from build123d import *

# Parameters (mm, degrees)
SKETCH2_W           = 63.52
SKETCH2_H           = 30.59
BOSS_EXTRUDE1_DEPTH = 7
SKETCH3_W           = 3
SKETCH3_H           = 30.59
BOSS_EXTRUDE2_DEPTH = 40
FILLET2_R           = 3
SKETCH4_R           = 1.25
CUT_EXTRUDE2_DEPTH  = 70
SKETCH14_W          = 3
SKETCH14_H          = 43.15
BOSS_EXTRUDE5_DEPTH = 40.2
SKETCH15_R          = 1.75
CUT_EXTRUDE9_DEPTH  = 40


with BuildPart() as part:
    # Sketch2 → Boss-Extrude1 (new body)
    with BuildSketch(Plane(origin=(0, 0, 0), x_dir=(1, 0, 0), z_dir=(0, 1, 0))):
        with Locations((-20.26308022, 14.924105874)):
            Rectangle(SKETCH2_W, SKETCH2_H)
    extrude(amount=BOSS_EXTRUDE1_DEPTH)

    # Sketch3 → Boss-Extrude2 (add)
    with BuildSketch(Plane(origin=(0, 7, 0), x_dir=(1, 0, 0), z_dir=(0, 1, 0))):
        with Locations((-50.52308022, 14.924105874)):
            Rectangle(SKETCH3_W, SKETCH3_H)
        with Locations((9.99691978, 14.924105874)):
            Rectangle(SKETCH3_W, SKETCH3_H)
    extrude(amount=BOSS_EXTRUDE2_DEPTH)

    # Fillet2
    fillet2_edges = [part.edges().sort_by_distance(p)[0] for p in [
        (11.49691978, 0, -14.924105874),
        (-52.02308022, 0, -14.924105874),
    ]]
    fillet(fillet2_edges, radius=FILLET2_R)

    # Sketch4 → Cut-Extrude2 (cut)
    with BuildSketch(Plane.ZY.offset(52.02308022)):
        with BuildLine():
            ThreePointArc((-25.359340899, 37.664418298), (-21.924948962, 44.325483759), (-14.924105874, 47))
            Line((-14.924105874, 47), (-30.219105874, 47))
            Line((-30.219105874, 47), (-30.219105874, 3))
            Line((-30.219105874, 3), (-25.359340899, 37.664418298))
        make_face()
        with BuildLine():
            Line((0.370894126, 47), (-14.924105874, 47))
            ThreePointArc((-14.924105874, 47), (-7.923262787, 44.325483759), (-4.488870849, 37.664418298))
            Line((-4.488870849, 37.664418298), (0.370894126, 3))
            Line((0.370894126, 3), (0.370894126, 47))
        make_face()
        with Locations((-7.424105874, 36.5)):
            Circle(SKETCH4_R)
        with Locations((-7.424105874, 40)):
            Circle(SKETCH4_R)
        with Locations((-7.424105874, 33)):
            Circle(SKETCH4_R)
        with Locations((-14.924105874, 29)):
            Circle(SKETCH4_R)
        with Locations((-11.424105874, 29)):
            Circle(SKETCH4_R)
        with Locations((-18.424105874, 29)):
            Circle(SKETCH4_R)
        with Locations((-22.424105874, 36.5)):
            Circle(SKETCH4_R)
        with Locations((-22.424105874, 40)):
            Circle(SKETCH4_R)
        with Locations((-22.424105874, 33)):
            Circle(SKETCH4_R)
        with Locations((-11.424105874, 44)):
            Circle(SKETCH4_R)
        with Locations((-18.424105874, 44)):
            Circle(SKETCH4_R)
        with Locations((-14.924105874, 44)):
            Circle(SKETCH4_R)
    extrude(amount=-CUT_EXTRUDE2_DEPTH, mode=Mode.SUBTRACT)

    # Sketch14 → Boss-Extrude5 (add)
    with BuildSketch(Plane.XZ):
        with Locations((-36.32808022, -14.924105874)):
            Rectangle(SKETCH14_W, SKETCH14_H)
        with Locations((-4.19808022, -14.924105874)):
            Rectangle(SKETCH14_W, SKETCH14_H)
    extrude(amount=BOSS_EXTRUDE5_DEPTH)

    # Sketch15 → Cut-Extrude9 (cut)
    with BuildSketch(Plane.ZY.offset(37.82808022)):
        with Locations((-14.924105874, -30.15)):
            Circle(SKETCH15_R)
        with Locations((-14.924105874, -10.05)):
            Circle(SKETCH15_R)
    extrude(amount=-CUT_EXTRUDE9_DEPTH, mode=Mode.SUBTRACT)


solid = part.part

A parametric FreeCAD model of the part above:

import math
import FreeCAD as App
import Part
import Sketcher
from FreeCAD import Vector
Q = App.Units.Quantity


def edges_at(feature, points):
    """Names of the edges that pass closest to the given points."""
    edges = feature.Shape.Edges
    near = lambda p: min(range(len(edges)), key=lambda i: edges[i].distToShape(Part.Vertex(*p))[0])
    return sorted({f"Edge{near(p) + 1}" for p in points})


def add_polygon(sketch, points):
    """Adds a closed chain of lines whose ends are joined by coincident constraints."""
    first, n = sketch.GeometryCount, len(points)
    for a, b in zip(points, points[1:] + points[:1]):
        sketch.addGeometry(Part.LineSegment(App.Vector(*a, 0), App.Vector(*b, 0)), False)
    for i in range(n):
        sketch.addConstraint(Sketcher.Constraint("Coincident", first + i, 2, first + (i + 1) % n, 1))

doc = App.newDocument("Part")
body = doc.addObject("PartDesign::Body", "Body")

# Sketch on XZ plane
sketch1 = body.newObject("Sketcher::SketchObject", "Sketch")
sketch1.AttachmentSupport = (doc.getObject("XZ_Plane"), [""])
sketch1.MapMode = "FlatFace"
add_polygon(sketch1, [(-52.02308, -30.219106), (-52.02308, 0.370894), (11.49692, 0.370894), (11.49692, -30.219106)])  # lines 0-3
sketch1.addConstraint([
    Sketcher.Constraint("Vertical", 0),
    Sketcher.Constraint("Horizontal", 1),
    Sketcher.Constraint("Vertical", 2),
    Sketcher.Constraint("Horizontal", 3),
    Sketcher.Constraint("DistanceX", 1, 1, 1, 2, Q("63.52 mm")),
    Sketcher.Constraint("DistanceY", 0, 1, 0, 2, Q("30.59 mm")),
    Sketcher.Constraint("DistanceX", 0, 2, -1, 1, Q("52.02308 mm")),
    Sketcher.Constraint("DistanceY", -1, 1, 0, 2, Q("0.370894 mm")),
])
pad1 = body.newObject("PartDesign::Pad", "Pad")
pad1.Profile = sketch1
pad1.Length = 7
pad1.Reversed = True

# Sketch on XZ plane
sketch2 = body.newObject("Sketcher::SketchObject", "Sketch001")
sketch2.AttachmentSupport = (doc.getObject("XZ_Plane"), [""])
sketch2.MapMode = "FlatFace"
sketch2.AttachmentOffset = App.Placement(Vector(0, 0, -7), App.Rotation())
add_polygon(sketch2, [(-52.02308, -30.219106), (-52.02308, 0.370894), (-49.02308, 0.370894), (-49.02308, -30.219106)])  # lines 0-3
add_polygon(sketch2, [(8.49692, -30.219106), (8.49692, 0.370894), (11.49692, 0.370894), (11.49692, -30.219106)])  # lines 4-7
sketch2.addConstraint([
    Sketcher.Constraint("Vertical", 0),
    Sketcher.Constraint("Horizontal", 1),
    Sketcher.Constraint("Vertical", 2),
    Sketcher.Constraint("Horizontal", 3),
    Sketcher.Constraint("Vertical", 4),
    Sketcher.Constraint("Horizontal", 5),
    Sketcher.Constraint("Vertical", 6),
    Sketcher.Constraint("Horizontal", 7),
    Sketcher.Constraint("Horizontal", 1, 2, 4, 2),
    Sketcher.Constraint("Horizontal", 3, 2, 6, 2),
    Sketcher.Constraint("Equal", 3, 5),
    Sketcher.Constraint("DistanceX", 1, 1, 1, 2, Q("3 mm")),
    Sketcher.Constraint("DistanceY", 0, 1, 0, 2, Q("30.59 mm")),
    Sketcher.Constraint("DistanceX", 1, 2, 4, 2, Q("57.52 mm")),
    Sketcher.Constraint("DistanceX", 0, 2, -1, 1, Q("52.02308 mm")),
    Sketcher.Constraint("DistanceY", -1, 1, 0, 2, Q("0.370894 mm")),
])
pad2 = body.newObject("PartDesign::Pad", "Pad001")
pad2.Profile = sketch2
pad2.Length = 40
pad2.Reversed = True
doc.recompute()

fillet = body.newObject("PartDesign::Fillet", "Fillet")
fillet.Base = (pad2, edges_at(pad2, [(11.497, 0, -14.924), (-52.023, 0, -14.924)]))
fillet.Radius = 3

# Sketch on YZ plane
sketch3 = body.newObject("Sketcher::SketchObject", "Sketch002")
sketch3.AttachmentSupport = (doc.getObject("YZ_Plane"), [""])
sketch3.MapMode = "FlatFace"
sketch3.AttachmentOffset = App.Placement(Vector(0, 0, -52.02308), App.Rotation())
sketch3.addGeometry([
    Part.ArcOfCircle(Part.Circle(Vector(36.5, -14.924106, 0), Vector(0, 0, 1), 10.5), math.radians(-83.632975), math.radians(0)),  # 0
    Part.LineSegment(Vector(47, -14.924106, 0), Vector(47, -30.219106, 0)),  # 1
    Part.LineSegment(Vector(47, -30.219106, 0), Vector(3, -30.219106, 0)),  # 2
    Part.LineSegment(Vector(3, -30.219106, 0), Vector(37.664418, -25.359341, 0)),  # 3
    Part.LineSegment(Vector(47, 0.370894, 0), Vector(47, -14.924106, 0)),  # 4
    Part.ArcOfCircle(Part.Circle(Vector(36.5, -14.924106, 0), Vector(0, 0, 1), 10.5), math.radians(0), math.radians(83.632975)),  # 5
    Part.LineSegment(Vector(37.664418, -4.488871, 0), Vector(3, 0.370894, 0)),  # 6
    Part.LineSegment(Vector(3, 0.370894, 0), Vector(47, 0.370894, 0)),  # 7
    Part.Circle(Vector(36.5, -7.424106, 0), Vector(0, 0, 1), 1.25),  # 8
    Part.Circle(Vector(40, -7.424106, 0), Vector(0, 0, 1), 1.25),  # 9
    Part.Circle(Vector(33, -7.424106, 0), Vector(0, 0, 1), 1.25),  # 10
    Part.Circle(Vector(29, -14.924106, 0), Vector(0, 0, 1), 1.25),  # 11
    Part.Circle(Vector(29, -11.424106, 0), Vector(0, 0, 1), 1.25),  # 12
    Part.Circle(Vector(29, -18.424106, 0), Vector(0, 0, 1), 1.25),  # 13
    Part.Circle(Vector(36.5, -22.424106, 0), Vector(0, 0, 1), 1.25),  # 14
    Part.Circle(Vector(40, -22.424106, 0), Vector(0, 0, 1), 1.25),  # 15
    Part.Circle(Vector(33, -22.424106, 0), Vector(0, 0, 1), 1.25),  # 16
    Part.Circle(Vector(44, -11.424106, 0), Vector(0, 0, 1), 1.25),  # 17
    Part.Circle(Vector(44, -18.424106, 0), Vector(0, 0, 1), 1.25),  # 18
    Part.Circle(Vector(44, -14.924106, 0), Vector(0, 0, 1), 1.25),  # 19
], False)
sketch3.addConstraint([
    Sketcher.Constraint("Tangent", 0, 2, 1, 1),
    Sketcher.Constraint("Coincident", 1, 2, 2, 1),
    Sketcher.Constraint("Coincident", 2, 2, 3, 1),
    Sketcher.Constraint("Coincident", 3, 2, 0, 1),
    Sketcher.Constraint("Tangent", 4, 2, 5, 1),
    Sketcher.Constraint("Coincident", 5, 2, 6, 1),
    Sketcher.Constraint("Coincident", 6, 2, 7, 1),
    Sketcher.Constraint("Coincident", 7, 2, 4, 1),
    Sketcher.Constraint("Vertical", 1),
    Sketcher.Constraint("Horizontal", 2),
    Sketcher.Constraint("Vertical", 4),
    Sketcher.Constraint("Horizontal", 7),
    Sketcher.Constraint("Coincident", 5, 3, 0, 3),
    Sketcher.Constraint("Equal", 0, 5),
    Sketcher.Constraint("Equal", 8, 9),
    Sketcher.Constraint("Equal", 9, 10),
    Sketcher.Constraint("Equal", 10, 11),
    Sketcher.Constraint("Equal", 11, 12),
    Sketcher.Constraint("Equal", 12, 13),
    Sketcher.Constraint("Equal", 13, 14),
    Sketcher.Constraint("Equal", 14, 15),
    Sketcher.Constraint("Equal", 15, 16),
    Sketcher.Constraint("Equal", 16, 17),
    Sketcher.Constraint("Equal", 17, 18),
    Sketcher.Constraint("Equal", 18, 19),
    Sketcher.Constraint("Horizontal", 8, 3, 9, 3),
    Sketcher.Constraint("Horizontal", 9, 3, 10, 3),
    Sketcher.Constraint("Horizontal", 5, 3, 11, 3),
    Sketcher.Constraint("Horizontal", 14, 3, 15, 3),
    Sketcher.Constraint("Horizontal", 15, 3, 16, 3),
    Sketcher.Constraint("Horizontal", 12, 3, 17, 3),
    Sketcher.Constraint("Horizontal", 13, 3, 18, 3),
    Sketcher.Constraint("Horizontal", 11, 3, 19, 3),
    Sketcher.Constraint("Vertical", 5, 3, 8, 3),
    Sketcher.Constraint("Vertical", 11, 3, 12, 3),
    Sketcher.Constraint("Vertical", 12, 3, 13, 3),
    Sketcher.Constraint("Vertical", 8, 3, 14, 3),
    Sketcher.Constraint("Vertical", 9, 3, 15, 3),
    Sketcher.Constraint("Vertical", 10, 3, 16, 3),
    Sketcher.Constraint("Vertical", 17, 3, 18, 3),
    Sketcher.Constraint("Vertical", 18, 3, 19, 3),
    Sketcher.Constraint("Vertical", 3, 2, 5, 2),
    Sketcher.Constraint("Vertical", 2, 2, 6, 2),
    Sketcher.Constraint("Equal", 1, 4),
    Sketcher.Constraint("Diameter", 8, Q("2.5 mm")),
    Sketcher.Constraint("Radius", 0, Q("10.5 mm")),
    Sketcher.Constraint("DistanceX", 2, 2, 2, 1, Q("44 mm")),
    Sketcher.Constraint("DistanceX", -1, 1, 9, 3, Q("40 mm")),
    Sketcher.Constraint("DistanceX", -1, 1, 10, 3, Q("33 mm")),
    Sketcher.Constraint("DistanceX", -1, 1, 11, 3, Q("29 mm")),
    Sketcher.Constraint("DistanceX", -1, 1, 17, 3, Q("44 mm")),
    Sketcher.Constraint("DistanceX", -1, 1, 0, 2, Q("47 mm")),
    Sketcher.Constraint("DistanceY", 12, 3, 10, 3, Q("4 mm")),
    Sketcher.Constraint("DistanceY", 13, 3, 12, 3, Q("7 mm")),
    Sketcher.Constraint("DistanceY", 14, 3, 13, 3, Q("4 mm")),
    Sketcher.Constraint("DistanceY", 0, 3, 8, 3, Q("7.5 mm")),
    Sketcher.Constraint("DistanceY", 1, 2, 1, 1, Q("15.295 mm")),
    Sketcher.Constraint("DistanceX", -1, 1, 3, 2, Q("37.664418 mm")),
    Sketcher.Constraint("DistanceY", 3, 2, -1, 1, Q("25.359341 mm")),
])
pocket1 = body.newObject("PartDesign::Pocket", "Pocket")
pocket1.Profile = sketch3
pocket1.Length = 70
pocket1.Reversed = True

# Sketch on XZ plane
sketch4 = body.newObject("Sketcher::SketchObject", "Sketch003")
sketch4.AttachmentSupport = (doc.getObject("XZ_Plane"), [""])
sketch4.MapMode = "FlatFace"
add_polygon(sketch4, [(-37.82808, 6.650894), (-37.82808, -36.499106), (-34.82808, -36.499106), (-34.82808, 6.650894)])  # lines 0-3
add_polygon(sketch4, [(-5.69808, 6.650894), (-5.69808, -36.499106), (-2.69808, -36.499106), (-2.69808, 6.650894)])  # lines 4-7
sketch4.addConstraint([
    Sketcher.Constraint("Vertical", 0),
    Sketcher.Constraint("Horizontal", 1),
    Sketcher.Constraint("Vertical", 2),
    Sketcher.Constraint("Horizontal", 3),
    Sketcher.Constraint("Vertical", 4),
    Sketcher.Constraint("Horizontal", 5),
    Sketcher.Constraint("Vertical", 6),
    Sketcher.Constraint("Horizontal", 7),
    Sketcher.Constraint("Horizontal", 1, 2, 4, 2),
    Sketcher.Constraint("Horizontal", 3, 2, 6, 2),
    Sketcher.Constraint("Equal", 3, 5),
    Sketcher.Constraint("DistanceX", 1, 1, 1, 2, Q("3 mm")),
    Sketcher.Constraint("DistanceY", 0, 2, 0, 1, Q("43.15 mm")),
    Sketcher.Constraint("DistanceX", 1, 2, 4, 2, Q("29.13 mm")),
    Sketcher.Constraint("DistanceX", 0, 2, -1, 1, Q("37.82808 mm")),
    Sketcher.Constraint("DistanceY", 0, 2, -1, 1, Q("36.499106 mm")),
])
pad3 = body.newObject("PartDesign::Pad", "Pad002")
pad3.Profile = sketch4
pad3.Length = 40.2

# Sketch on YZ plane
sketch5 = body.newObject("Sketcher::SketchObject", "Sketch004")
sketch5.AttachmentSupport = (doc.getObject("YZ_Plane"), [""])
sketch5.MapMode = "FlatFace"
sketch5.AttachmentOffset = App.Placement(Vector(0, 0, -37.82808), App.Rotation())
sketch5.addGeometry([
    Part.Circle(Vector(-30.15, -14.924106, 0), Vector(0, 0, 1), 1.75),
    Part.Circle(Vector(-10.05, -14.924106, 0), Vector(0, 0, 1), 1.75),
], False)
sketch5.addConstraint([
    Sketcher.Constraint("Equal", 0, 1),
    Sketcher.Constraint("Horizontal", 0, 3, 1, 3),
    Sketcher.Constraint("Diameter", 0, Q("3.5 mm")),
    Sketcher.Constraint("DistanceX", 0, 3, 1, 3, Q("20.1 mm")),
    Sketcher.Constraint("DistanceX", 0, 3, -1, 1, Q("30.15 mm")),
    Sketcher.Constraint("DistanceY", 0, 3, -1, 1, Q("14.924106 mm")),
])
pocket2 = body.newObject("PartDesign::Pocket", "Pocket001")
pocket2.Profile = sketch5
pocket2.Length = 40
pocket2.Reversed = True

doc.recompute()
